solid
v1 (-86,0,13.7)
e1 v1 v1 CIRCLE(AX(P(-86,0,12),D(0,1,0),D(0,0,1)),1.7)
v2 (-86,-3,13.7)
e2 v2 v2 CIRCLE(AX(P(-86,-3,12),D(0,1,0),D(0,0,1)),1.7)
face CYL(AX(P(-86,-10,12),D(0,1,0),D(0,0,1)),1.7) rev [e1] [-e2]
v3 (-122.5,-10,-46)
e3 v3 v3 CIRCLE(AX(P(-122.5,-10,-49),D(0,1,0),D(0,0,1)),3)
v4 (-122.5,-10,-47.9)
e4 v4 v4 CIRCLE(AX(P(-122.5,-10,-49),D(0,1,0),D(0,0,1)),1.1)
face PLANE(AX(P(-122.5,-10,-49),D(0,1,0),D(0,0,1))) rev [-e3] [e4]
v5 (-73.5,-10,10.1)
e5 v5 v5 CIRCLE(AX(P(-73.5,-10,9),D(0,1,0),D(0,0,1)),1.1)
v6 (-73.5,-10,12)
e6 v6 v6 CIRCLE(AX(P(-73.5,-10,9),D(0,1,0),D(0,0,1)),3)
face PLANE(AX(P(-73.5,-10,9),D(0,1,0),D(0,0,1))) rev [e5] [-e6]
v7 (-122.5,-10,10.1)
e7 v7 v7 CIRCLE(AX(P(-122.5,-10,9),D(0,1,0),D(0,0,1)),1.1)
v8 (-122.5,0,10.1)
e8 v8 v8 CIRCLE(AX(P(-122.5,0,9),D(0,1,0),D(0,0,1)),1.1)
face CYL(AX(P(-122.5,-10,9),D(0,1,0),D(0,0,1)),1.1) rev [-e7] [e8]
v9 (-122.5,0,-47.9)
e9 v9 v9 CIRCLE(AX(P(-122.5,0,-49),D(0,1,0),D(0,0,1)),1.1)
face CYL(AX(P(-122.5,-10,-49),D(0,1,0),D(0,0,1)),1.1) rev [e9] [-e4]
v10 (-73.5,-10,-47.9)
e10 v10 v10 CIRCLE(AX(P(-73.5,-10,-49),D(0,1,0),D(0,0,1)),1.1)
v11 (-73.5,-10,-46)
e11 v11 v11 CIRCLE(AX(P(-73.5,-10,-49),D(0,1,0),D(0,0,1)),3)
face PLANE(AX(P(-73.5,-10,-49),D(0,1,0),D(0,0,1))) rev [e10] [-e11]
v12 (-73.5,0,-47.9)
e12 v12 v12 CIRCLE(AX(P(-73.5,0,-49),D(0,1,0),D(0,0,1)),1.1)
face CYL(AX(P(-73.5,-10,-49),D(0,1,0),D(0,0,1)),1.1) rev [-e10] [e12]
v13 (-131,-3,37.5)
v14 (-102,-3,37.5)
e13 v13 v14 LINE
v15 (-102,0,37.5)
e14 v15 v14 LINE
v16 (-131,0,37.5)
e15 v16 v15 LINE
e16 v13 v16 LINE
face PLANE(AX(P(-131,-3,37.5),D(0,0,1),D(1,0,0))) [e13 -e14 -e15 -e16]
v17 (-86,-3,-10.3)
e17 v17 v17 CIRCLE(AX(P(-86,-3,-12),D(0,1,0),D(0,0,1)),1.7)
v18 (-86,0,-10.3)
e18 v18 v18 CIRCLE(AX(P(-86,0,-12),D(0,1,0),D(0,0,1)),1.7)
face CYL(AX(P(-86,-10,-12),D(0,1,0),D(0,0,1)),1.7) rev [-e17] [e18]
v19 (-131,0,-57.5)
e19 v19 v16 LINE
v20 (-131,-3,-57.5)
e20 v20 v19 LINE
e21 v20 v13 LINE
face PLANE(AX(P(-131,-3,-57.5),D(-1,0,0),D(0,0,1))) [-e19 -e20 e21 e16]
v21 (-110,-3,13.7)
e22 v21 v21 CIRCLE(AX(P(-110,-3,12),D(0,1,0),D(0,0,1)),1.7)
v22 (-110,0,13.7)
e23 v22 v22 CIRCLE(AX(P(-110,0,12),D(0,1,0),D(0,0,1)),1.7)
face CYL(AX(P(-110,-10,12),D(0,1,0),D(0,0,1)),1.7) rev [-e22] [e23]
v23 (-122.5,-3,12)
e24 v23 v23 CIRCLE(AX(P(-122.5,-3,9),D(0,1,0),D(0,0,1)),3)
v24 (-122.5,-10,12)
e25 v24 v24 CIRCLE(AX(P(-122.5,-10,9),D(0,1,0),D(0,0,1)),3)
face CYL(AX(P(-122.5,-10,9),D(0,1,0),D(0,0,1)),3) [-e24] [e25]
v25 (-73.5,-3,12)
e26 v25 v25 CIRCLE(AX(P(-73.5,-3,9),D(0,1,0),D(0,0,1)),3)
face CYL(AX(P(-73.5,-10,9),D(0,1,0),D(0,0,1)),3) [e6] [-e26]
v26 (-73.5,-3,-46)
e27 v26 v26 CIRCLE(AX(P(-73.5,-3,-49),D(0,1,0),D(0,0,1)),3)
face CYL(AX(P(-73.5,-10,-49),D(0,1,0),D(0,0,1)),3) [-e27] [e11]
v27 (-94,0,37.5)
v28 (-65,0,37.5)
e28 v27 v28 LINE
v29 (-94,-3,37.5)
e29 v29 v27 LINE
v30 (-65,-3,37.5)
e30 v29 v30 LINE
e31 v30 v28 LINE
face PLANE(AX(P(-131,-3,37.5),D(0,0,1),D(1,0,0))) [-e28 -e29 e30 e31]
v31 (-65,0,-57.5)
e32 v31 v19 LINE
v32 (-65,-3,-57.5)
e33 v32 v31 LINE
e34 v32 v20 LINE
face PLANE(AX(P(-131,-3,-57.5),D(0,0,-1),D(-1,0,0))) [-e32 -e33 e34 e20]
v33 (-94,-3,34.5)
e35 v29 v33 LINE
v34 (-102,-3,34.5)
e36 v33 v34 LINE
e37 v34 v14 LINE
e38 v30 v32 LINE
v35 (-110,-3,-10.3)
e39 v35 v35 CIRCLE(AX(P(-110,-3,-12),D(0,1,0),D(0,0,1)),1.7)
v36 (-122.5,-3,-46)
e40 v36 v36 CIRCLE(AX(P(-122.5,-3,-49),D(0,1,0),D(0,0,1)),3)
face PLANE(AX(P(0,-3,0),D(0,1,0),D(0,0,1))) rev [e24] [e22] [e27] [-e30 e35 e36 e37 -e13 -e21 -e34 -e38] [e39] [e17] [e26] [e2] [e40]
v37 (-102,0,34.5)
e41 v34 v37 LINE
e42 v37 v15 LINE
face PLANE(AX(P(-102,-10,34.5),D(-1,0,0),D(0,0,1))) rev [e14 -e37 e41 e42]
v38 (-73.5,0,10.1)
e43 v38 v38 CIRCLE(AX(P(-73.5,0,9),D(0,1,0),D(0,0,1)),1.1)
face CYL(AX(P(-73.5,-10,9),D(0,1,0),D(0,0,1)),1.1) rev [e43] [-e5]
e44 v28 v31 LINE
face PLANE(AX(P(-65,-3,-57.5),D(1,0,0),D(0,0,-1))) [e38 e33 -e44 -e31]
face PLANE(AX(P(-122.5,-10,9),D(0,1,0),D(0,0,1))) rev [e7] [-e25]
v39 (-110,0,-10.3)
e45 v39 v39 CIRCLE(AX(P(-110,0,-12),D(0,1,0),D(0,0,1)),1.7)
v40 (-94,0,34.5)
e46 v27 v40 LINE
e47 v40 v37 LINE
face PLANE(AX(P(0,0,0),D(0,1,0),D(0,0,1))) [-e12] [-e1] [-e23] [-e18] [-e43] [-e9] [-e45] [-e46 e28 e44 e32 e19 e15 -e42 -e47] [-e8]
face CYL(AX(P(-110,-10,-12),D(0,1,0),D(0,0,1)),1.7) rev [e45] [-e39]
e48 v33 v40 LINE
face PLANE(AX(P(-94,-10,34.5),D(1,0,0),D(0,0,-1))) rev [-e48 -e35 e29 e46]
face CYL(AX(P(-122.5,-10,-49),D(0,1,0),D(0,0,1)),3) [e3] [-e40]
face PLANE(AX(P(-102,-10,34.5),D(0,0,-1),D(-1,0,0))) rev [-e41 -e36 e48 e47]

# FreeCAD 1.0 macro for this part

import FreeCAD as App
import Part
import Sketcher


def add_polygon(sketch, points):
    """Adds a closed chain of lines whose ends are joined by coincident constraints."""
    first, n = sketch.GeometryCount, len(points)
    for a, b in zip(points, points[1:] + points[:1]):
        sketch.addGeometry(Part.LineSegment(App.Vector(*a, 0), App.Vector(*b, 0)), False)
    for i in range(n):
        sketch.addConstraint(Sketcher.Constraint("Coincident", first + i, 2, first + (i + 1) % n, 1))

doc = App.newDocument("Part")
body = doc.addObject("PartDesign::Body", "Body")

# Sketch on XZ plane
sketch1 = doc.addObject("Sketcher::SketchObject", "Sketch")
body.addObject(sketch1)
sketch1.AttachmentSupport = (doc.XZ_Plane, [""])
sketch1.MapMode = "FlatFace"
add_polygon(sketch1, [(-131, -58), (-131, 38), (-65, 38), (-65, -58)])  # lines 0-3
sketch1.addConstraint(Sketcher.Constraint("Vertical", 0))
sketch1.addConstraint(Sketcher.Constraint("Horizontal", 1))
sketch1.addConstraint(Sketcher.Constraint("Vertical", 2))
sketch1.addConstraint(Sketcher.Constraint("Horizontal", 3))
sketch1.addConstraint(Sketcher.Constraint("DistanceX", 1, 1, 1, 2, 66.0))
sketch1.addConstraint(Sketcher.Constraint("DistanceY", 0, 1, 0, 2, 95.0))
sketch1.addConstraint(Sketcher.Constraint("DistanceX", 0, 2, -1, 1, 131.0))
sketch1.addConstraint(Sketcher.Constraint("DistanceY", -1, 1, 0, 2, 37.5))
pad1 = doc.addObject("PartDesign::Pad", "Pad")
body.addObject(pad1)
pad1.Profile = sketch1
pad1.Length = 3

# Sketch on XZ plane
sketch2 = doc.addObject("Sketcher::SketchObject", "Sketch001")
body.addObject(sketch2)
sketch2.AttachmentSupport = (doc.XZ_Plane, [""])
sketch2.MapMode = "FlatFace"
sketch2.addGeometry(Part.Circle(App.Vector(-122.5, -49, 0), App.Vector(0, 0, 1), 3), False)
sketch2.addGeometry(Part.Circle(App.Vector(-122.5, 9, 0), App.Vector(0, 0, 1), 3), False)
sketch2.addGeometry(Part.Circle(App.Vector(-73.5, -49, 0), App.Vector(0, 0, 1), 3), False)
sketch2.addGeometry(Part.Circle(App.Vector(-73.5, 9, 0), App.Vector(0, 0, 1), 3), False)
sketch2.addConstraint(Sketcher.Constraint("Equal", 0, 1))
sketch2.addConstraint(Sketcher.Constraint("Equal", 1, 2))
sketch2.addConstraint(Sketcher.Constraint("Equal", 2, 3))
sketch2.addConstraint(Sketcher.Constraint("Horizontal", 0, 3, 2, 3))
sketch2.addConstraint(Sketcher.Constraint("Horizontal", 1, 3, 3, 3))
sketch2.addConstraint(Sketcher.Constraint("Vertical", 0, 3, 1, 3))
sketch2.addConstraint(Sketcher.Constraint("Vertical", 2, 3, 3, 3))
sketch2.addConstraint(Sketcher.Constraint("Diameter", 0, 6.0))
sketch2.addConstraint(Sketcher.Constraint("DistanceY", 0, 3, -1, 1, 49.0))
sketch2.addConstraint(Sketcher.Constraint("DistanceY", -1, 1, 1, 3, 9.0))
sketch2.addConstraint(Sketcher.Constraint("DistanceX", 0, 3, 2, 3, 49.0))
sketch2.addConstraint(Sketcher.Constraint("DistanceX", 0, 3, -1, 1, 122.5))
pad2 = doc.addObject("PartDesign::Pad", "Pad001")
body.addObject(pad2)
pad2.Profile = sketch2
pad2.Length = 10

# Sketch on XZ plane
sketch3 = doc.addObject("Sketcher::SketchObject", "Sketch002")
body.addObject(sketch3)
sketch3.AttachmentSupport = (doc.XZ_Plane, [""])
sketch3.MapMode = "FlatFace"
sketch3.addGeometry(Part.Circle(App.Vector(-122.5, -49, 0), App.Vector(0, 0, 1), 1.1), False)
sketch3.addGeometry(Part.Circle(App.Vector(-122.5, 9, 0), App.Vector(0, 0, 1), 1.1), False)
sketch3.addGeometry(Part.Circle(App.Vector(-73.5, -49, 0), App.Vector(0, 0, 1), 1.1), False)
sketch3.addGeometry(Part.Circle(App.Vector(-73.5, 9, 0), App.Vector(0, 0, 1), 1.1), False)
sketch3.addGeometry(Part.Circle(App.Vector(-110, 12, 0), App.Vector(0, 0, 1), 1.7), False)
sketch3.addGeometry(Part.Circle(App.Vector(-110, -12, 0), App.Vector(0, 0, 1), 1.7), False)
sketch3.addGeometry(Part.Circle(App.Vector(-86, 12, 0), App.Vector(0, 0, 1), 1.7), False)
sketch3.addGeometry(Part.Circle(App.Vector(-86, -12, 0), App.Vector(0, 0, 1), 1.7), False)
sketch3.addConstraint(Sketcher.Constraint("Equal", 0, 1))
sketch3.addConstraint(Sketcher.Constraint("Equal", 1, 2))
sketch3.addConstraint(Sketcher.Constraint("Equal", 2, 3))
sketch3.addConstraint(Sketcher.Constraint("Equal", 4, 5))
sketch3.addConstraint(Sketcher.Constraint("Equal", 5, 6))
sketch3.addConstraint(Sketcher.Constraint("Equal", 6, 7))
sketch3.addConstraint(Sketcher.Constraint("Symmetric", 4, 3, 5, 3, -1))
sketch3.addConstraint(Sketcher.Constraint("Symmetric", 6, 3, 7, 3, -1))
sketch3.addConstraint(Sketcher.Constraint("Horizontal", 0, 3, 2, 3))
sketch3.addConstraint(Sketcher.Constraint("Horizontal", 1, 3, 3, 3))
sketch3.addConstraint(Sketcher.Constraint("Horizontal", 4, 3, 6, 3))
sketch3.addConstraint(Sketcher.Constraint("Vertical", 0, 3, 1, 3))
sketch3.addConstraint(Sketcher.Constraint("Vertical", 2, 3, 3, 3))
sketch3.addConstraint(Sketcher.Constraint("Diameter", 0, 2.2))
sketch3.addConstraint(Sketcher.Constraint("Diameter", 4, 3.4))
sketch3.addConstraint(Sketcher.Constraint("DistanceY", 0, 3, -1, 1, 49.0))
sketch3.addConstraint(Sketcher.Constraint("DistanceY", -1, 1, 1, 3, 9.0))
sketch3.addConstraint(Sketcher.Constraint("DistanceX", 4, 3, -1, 1, 110.0))
sketch3.addConstraint(Sketcher.Constraint("DistanceY", -1, 1, 4, 3, 12.0))
sketch3.addConstraint(Sketcher.Constraint("DistanceX", 6, 3, -1, 1, 86.0))
sketch3.addConstraint(Sketcher.Constraint("DistanceX", 0, 3, 2, 3, 49.0))
sketch3.addConstraint(Sketcher.Constraint("DistanceX", 0, 3, -1, 1, 122.5))
pocket1 = doc.addObject("PartDesign::Pocket", "Pocket")
body.addObject(pocket1)
pocket1.Profile = sketch3
pocket1.Type = "ThroughAll"
pocket1.Midplane = True

# Sketch on XZ plane
sketch4 = doc.addObject("Sketcher::SketchObject", "Sketch003")
body.addObject(sketch4)
sketch4.AttachmentSupport = (doc.XZ_Plane, [""])
sketch4.MapMode = "FlatFace"
add_polygon(sketch4, [(-102, 34.5), (-102, 38.5), (-94, 38.5), (-94, 34.5)])  # lines 0-3
sketch4.addConstraint(Sketcher.Constraint("Vertical", 0))
sketch4.addConstraint(Sketcher.Constraint("Horizontal", 1))
sketch4.addConstraint(Sketcher.Constraint("Vertical", 2))
sketch4.addConstraint(Sketcher.Constraint("Horizontal", 3))
sketch4.addConstraint(Sketcher.Constraint("DistanceX", 1, 1, 1, 2, 8.0))
sketch4.addConstraint(Sketcher.Constraint("DistanceY", 0, 1, 0, 2, 4.0))
sketch4.addConstraint(Sketcher.Constraint("DistanceX", 0, 2, -1, 1, 102.0))
sketch4.addConstraint(Sketcher.Constraint("DistanceY", -1, 1, 0, 2, 38.5))
pocket2 = doc.addObject("PartDesign::Pocket", "Pocket001")
body.addObject(pocket2)
pocket2.Profile = sketch4
pocket2.Type = "ThroughAll"
pocket2.Midplane = True

doc.recompute()
